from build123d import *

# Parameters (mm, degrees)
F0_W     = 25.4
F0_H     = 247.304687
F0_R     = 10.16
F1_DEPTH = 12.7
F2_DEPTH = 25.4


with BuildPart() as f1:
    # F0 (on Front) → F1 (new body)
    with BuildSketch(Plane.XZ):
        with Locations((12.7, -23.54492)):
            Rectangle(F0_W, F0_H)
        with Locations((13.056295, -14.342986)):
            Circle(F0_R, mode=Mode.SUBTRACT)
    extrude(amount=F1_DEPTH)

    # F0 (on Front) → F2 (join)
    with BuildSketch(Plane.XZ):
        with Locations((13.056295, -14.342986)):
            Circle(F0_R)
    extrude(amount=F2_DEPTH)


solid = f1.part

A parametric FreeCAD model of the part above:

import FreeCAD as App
import Part
import Sketcher
Q = App.Units.Quantity

doc = App.newDocument("Part")
params = doc.addObject("Spreadsheet::Sheet", "Params")
for row, (alias, value) in enumerate([
    ("sketch1_diameter", "0.8 in"),
    ("sketch1_width", "1 in"),
    ("pad1_length", "0.5 in"),
    ("sketch2_diameter", "0.8 in"),
    ("pad2_length", "1 in"),
], start=1):
    params.set(f"A{row}", alias)
    params.set(f"B{row}", "=" + value)
    params.setAlias(f"B{row}", alias)

body = doc.addObject("PartDesign::Body", "Body")

# Sketch on XZ plane
sketch1 = body.newObject("Sketcher::SketchObject", "Sketch")
sketch1.AttachmentSupport = (doc.getObject("XZ_Plane"), [""])
sketch1.MapMode = "FlatFace"
sketch1.addGeometry([
    Part.LineSegment(App.Vector(0, 100.107423, 0), App.Vector(0, -147.197263, 0)),  # 0
    Part.LineSegment(App.Vector(0, -147.197263, 0), App.Vector(25.4, -147.197263, 0)),  # 1
    Part.LineSegment(App.Vector(25.4, -147.197263, 0), App.Vector(25.4, 100.107423, 0)),  # 2
    Part.LineSegment(App.Vector(25.4, 100.107423, 0), App.Vector(0, 100.107423, 0)),  # 3
    Part.Circle(App.Vector(13.056295, -14.342986, 0), App.Vector(0, 0, 1), 10.16),  # 4
], False)
sketch1.addConstraint([
    Sketcher.Constraint("Coincident", 0, 2, 1, 1),
    Sketcher.Constraint("Coincident", 1, 2, 2, 1),
    Sketcher.Constraint("Coincident", 2, 2, 3, 1),
    Sketcher.Constraint("Coincident", 3, 2, 0, 1),
    Sketcher.Constraint("Vertical", 0),
    Sketcher.Constraint("Horizontal", 1),
    Sketcher.Constraint("Vertical", 2),
    Sketcher.Constraint("Horizontal", 3),
    Sketcher.Constraint("PointOnObject", 0, 2, -2),
    Sketcher.Constraint("Diameter", 4, Q("0.8 in")),
    Sketcher.Constraint("DistanceX", 1, 1, 1, 2, Q("1 in")),
    Sketcher.Constraint("DistanceY", 0, 2, 0, 1, Q("247.304687 mm")),
    Sketcher.Constraint("DistanceY", 4, 3, 2, 2, Q("114.450409 mm")),
    Sketcher.Constraint("DistanceX", -1, 1, 4, 3, Q("13.056295 mm")),
    Sketcher.Constraint("DistanceY", 4, 3, -1, 1, Q("14.342986 mm")),
])
sketch1.setExpression("Constraints[9]", "Params.sketch1_diameter")
sketch1.setExpression("Constraints[10]", "Params.sketch1_width")
pad1 = body.newObject("PartDesign::Pad", "Pad")
pad1.Profile = sketch1
pad1.setExpression("Length", "Params.pad1_length")

# Sketch on XZ plane
sketch2 = body.newObject("Sketcher::SketchObject", "Sketch001")
sketch2.AttachmentSupport = (doc.getObject("XZ_Plane"), [""])
sketch2.MapMode = "FlatFace"
sketch2.addGeometry(Part.Circle(App.Vector(13.056295, -14.342986, 0), App.Vector(0, 0, 1), 10.16), False)
sketch2.addConstraint([
    Sketcher.Constraint("Diameter", 0, Q("0.8 in")),
    Sketcher.Constraint("DistanceX", -1, 1, 0, 3, Q("13.056295 mm")),
    Sketcher.Constraint("DistanceY", 0, 3, -1, 1, Q("14.342986 mm")),
])
sketch2.setExpression("Constraints[0]", "Params.sketch2_diameter")
pad2 = body.newObject("PartDesign::Pad", "Pad001")
pad2.Profile = sketch2
pad2.setExpression("Length", "Params.pad2_length")

doc.recompute()
